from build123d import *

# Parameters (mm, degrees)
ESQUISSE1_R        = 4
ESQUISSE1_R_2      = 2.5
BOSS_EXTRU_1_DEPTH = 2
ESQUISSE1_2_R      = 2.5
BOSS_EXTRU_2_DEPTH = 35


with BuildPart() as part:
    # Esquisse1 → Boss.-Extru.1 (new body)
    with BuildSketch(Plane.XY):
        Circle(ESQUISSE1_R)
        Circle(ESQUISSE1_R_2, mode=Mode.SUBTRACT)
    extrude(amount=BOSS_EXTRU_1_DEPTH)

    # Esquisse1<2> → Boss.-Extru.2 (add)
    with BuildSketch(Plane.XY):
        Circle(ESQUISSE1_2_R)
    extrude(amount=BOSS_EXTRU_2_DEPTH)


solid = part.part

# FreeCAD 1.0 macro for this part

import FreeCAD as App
import Part
import Sketcher
from FreeCAD import Vector

doc = App.newDocument("Part")
body = doc.addObject("PartDesign::Body", "Body")

sketch1 = doc.addObject("Sketcher::SketchObject", "Sketch")
body.addObject(sketch1)
sketch1.AttachmentSupport = (doc.XY_Plane, [""])
sketch1.MapMode = "FlatFace"
sketch1.addGeometry([
    Part.Circle(Vector(0, 0, 0), Vector(0, 0, 1), 4),
    Part.Circle(Vector(0, 0, 0), Vector(0, 0, 1), 2.5),
], False)
sketch1.addConstraint([
    Sketcher.Constraint("Coincident", 0, 3, -1, 1),
    Sketcher.Constraint("Coincident", 1, 3, -1, 1),
    Sketcher.Constraint("Diameter", 0, 8.0),
    Sketcher.Constraint("Diameter", 1, 5.0),
])
pad1 = doc.addObject("PartDesign::Pad", "Pad")
body.addObject(pad1)
pad1.Profile = sketch1
pad1.Length = 2

sketch2 = doc.addObject("Sketcher::SketchObject", "Sketch001")
body.addObject(sketch2)
sketch2.AttachmentSupport = (doc.XY_Plane, [""])
sketch2.MapMode = "FlatFace"
sketch2.addGeometry(Part.Circle(Vector(0, 0, 0), Vector(0, 0, 1), 2.5), False)
sketch2.addConstraint([
    Sketcher.Constraint("Coincident", 0, 3, -1, 1),
    Sketcher.Constraint("Diameter", 0, 5.0),
])
pad2 = doc.addObject("PartDesign::Pad", "Pad001")
body.addObject(pad2)
pad2.Profile = sketch2
pad2.Length = 35

doc.recompute()
